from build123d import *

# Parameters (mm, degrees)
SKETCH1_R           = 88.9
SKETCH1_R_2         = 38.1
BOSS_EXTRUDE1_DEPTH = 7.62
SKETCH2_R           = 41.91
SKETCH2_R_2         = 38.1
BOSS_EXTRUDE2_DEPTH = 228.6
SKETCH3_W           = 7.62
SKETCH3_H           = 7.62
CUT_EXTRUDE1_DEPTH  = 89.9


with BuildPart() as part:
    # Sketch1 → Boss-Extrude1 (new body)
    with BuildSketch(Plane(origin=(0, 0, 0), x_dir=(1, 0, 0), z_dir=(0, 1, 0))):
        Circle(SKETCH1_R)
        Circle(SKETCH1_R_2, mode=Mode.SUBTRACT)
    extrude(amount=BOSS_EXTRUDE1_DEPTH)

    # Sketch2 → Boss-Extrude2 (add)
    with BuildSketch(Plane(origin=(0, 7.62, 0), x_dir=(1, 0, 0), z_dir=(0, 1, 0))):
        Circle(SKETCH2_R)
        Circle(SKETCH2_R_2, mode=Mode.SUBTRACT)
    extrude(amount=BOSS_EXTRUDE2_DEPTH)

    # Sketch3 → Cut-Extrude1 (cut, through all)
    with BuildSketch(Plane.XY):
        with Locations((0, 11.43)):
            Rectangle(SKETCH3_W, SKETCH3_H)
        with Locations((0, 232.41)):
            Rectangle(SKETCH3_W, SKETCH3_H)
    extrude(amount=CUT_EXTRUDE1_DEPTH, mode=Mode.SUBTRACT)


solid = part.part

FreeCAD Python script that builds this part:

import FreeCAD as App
import Part
import Sketcher

V = App.Vector
Q = App.Units.Quantity

doc = App.newDocument("Part")
body = doc.addObject("PartDesign::Body", "Body")

sketch1 = body.newObject("Sketcher::SketchObject", "Sketch")
sketch1.AttachmentSupport = (doc.getObject("XZ_Plane"), [""])
sketch1.MapMode = "FlatFace"
sketch1.addGeometry(Part.Circle(V(0, 0, 0), V(0, 0, 1), 89), False)
sketch1.addGeometry(Part.Circle(V(0, 0, 0), V(0, 0, 1), 38), False)
sketch1.addConstraint(Sketcher.Constraint("Coincident", 0, 3, -1, 1))
sketch1.addConstraint(Sketcher.Constraint("Coincident", 1, 3, -1, 1))
sketch1.addConstraint(Sketcher.Constraint("Diameter", 0, Q("7 in")))
sketch1.addConstraint(Sketcher.Constraint("Diameter", 1, Q("3 in")))
pad1 = body.newObject("PartDesign::Pad", "Pad")
pad1.Profile = sketch1
pad1.Length = Q("0.3 in")
pad1.Reversed = True

sketch2 = body.newObject("Sketcher::SketchObject", "Sketch001")
sketch2.AttachmentSupport = (doc.getObject("XZ_Plane"), [""])
sketch2.MapMode = "FlatFace"
sketch2.AttachmentOffset = App.Placement(V(0, 0, -0.3 * 25.4), App.Rotation())
sketch2.addGeometry(Part.Circle(V(0, 0, 0), V(0, 0, 1), 42), False)
sketch2.addGeometry(Part.Circle(V(0, 0, 0), V(0, 0, 1), 38), False)
sketch2.addConstraint(Sketcher.Constraint("Coincident", 0, 3, -1, 1))
sketch2.addConstraint(Sketcher.Constraint("Coincident", 1, 3, -1, 1))
sketch2.addConstraint(Sketcher.Constraint("Diameter", 1, Q("3 in")))
sketch2.addConstraint(Sketcher.Constraint("Diameter", 0, Q("3.3 in")))
pad2 = body.newObject("PartDesign::Pad", "Pad001")
pad2.Profile = sketch2
pad2.Length = Q("9 in")
pad2.Reversed = True

sketch3 = body.newObject("Sketcher::SketchObject", "Sketch002")
sketch3.AttachmentSupport = (doc.getObject("XY_Plane"), [""])
sketch3.MapMode = "FlatFace"
sketch3.addGeometry(Part.LineSegment(V(-4, 15, 0), V(-4, 8, 0)), False)
sketch3.addGeometry(Part.LineSegment(V(-4, 8, 0), V(4, 8, 0)), False)
sketch3.addGeometry(Part.LineSegment(V(4, 8, 0), V(4, 15, 0)), False)
sketch3.addGeometry(Part.LineSegment(V(4, 15, 0), V(-4, 15, 0)), False)
sketch3.addGeometry(Part.LineSegment(V(-4, 236, 0), V(-4, 229, 0)), False)
sketch3.addGeometry(Part.LineSegment(V(-4, 229, 0), V(4, 229, 0)), False)
sketch3.addGeometry(Part.LineSegment(V(4, 229, 0), V(4, 236, 0)), False)
sketch3.addGeometry(Part.LineSegment(V(4, 236, 0), V(-4, 236, 0)), False)
sketch3.addConstraint(Sketcher.Constraint("Coincident", 0, 2, 1, 1))
sketch3.addConstraint(Sketcher.Constraint("Coincident", 1, 2, 2, 1))
sketch3.addConstraint(Sketcher.Constraint("Coincident", 2, 2, 3, 1))
sketch3.addConstraint(Sketcher.Constraint("Coincident", 3, 2, 0, 1))
sketch3.addConstraint(Sketcher.Constraint("Coincident", 4, 2, 5, 1))
sketch3.addConstraint(Sketcher.Constraint("Coincident", 5, 2, 6, 1))
sketch3.addConstraint(Sketcher.Constraint("Coincident", 6, 2, 7, 1))
sketch3.addConstraint(Sketcher.Constraint("Coincident", 7, 2, 4, 1))
sketch3.addConstraint(Sketcher.Constraint("Vertical", 0))
sketch3.addConstraint(Sketcher.Constraint("Horizontal", 1))
sketch3.addConstraint(Sketcher.Constraint("Vertical", 2))
sketch3.addConstraint(Sketcher.Constraint("Horizontal", 3))
sketch3.addConstraint(Sketcher.Constraint("Vertical", 4))
sketch3.addConstraint(Sketcher.Constraint("Horizontal", 5))
sketch3.addConstraint(Sketcher.Constraint("Vertical", 6))
sketch3.addConstraint(Sketcher.Constraint("Horizontal", 7))
sketch3.addConstraint(Sketcher.Constraint("Vertical", 3, 2, 4, 2))
sketch3.addConstraint(Sketcher.Constraint("Vertical", 2, 2, 5, 2))
sketch3.addConstraint(Sketcher.Constraint("Equal", 7, 0))
sketch3.addConstraint(Sketcher.Constraint("Equal", 2, 4))
sketch3.addConstraint(Sketcher.Constraint("DistanceX", 1, 1, 1, 2, Q("0.3 in")))
sketch3.addConstraint(Sketcher.Constraint("DistanceY", -1, 1, 4, 2, Q("9 in")))
sketch3.addConstraint(Sketcher.Constraint("DistanceY", 1, 2, 6, 2, Q("9 in")))
sketch3.addConstraint(Sketcher.Constraint("DistanceX", 0, 2, -1, 1, Q("0.15 in")))
pocket1 = body.newObject("PartDesign::Pocket", "Pocket")
pocket1.Profile = sketch3
pocket1.Type = "ThroughAll"
pocket1.Reversed = True

doc.recompute()
